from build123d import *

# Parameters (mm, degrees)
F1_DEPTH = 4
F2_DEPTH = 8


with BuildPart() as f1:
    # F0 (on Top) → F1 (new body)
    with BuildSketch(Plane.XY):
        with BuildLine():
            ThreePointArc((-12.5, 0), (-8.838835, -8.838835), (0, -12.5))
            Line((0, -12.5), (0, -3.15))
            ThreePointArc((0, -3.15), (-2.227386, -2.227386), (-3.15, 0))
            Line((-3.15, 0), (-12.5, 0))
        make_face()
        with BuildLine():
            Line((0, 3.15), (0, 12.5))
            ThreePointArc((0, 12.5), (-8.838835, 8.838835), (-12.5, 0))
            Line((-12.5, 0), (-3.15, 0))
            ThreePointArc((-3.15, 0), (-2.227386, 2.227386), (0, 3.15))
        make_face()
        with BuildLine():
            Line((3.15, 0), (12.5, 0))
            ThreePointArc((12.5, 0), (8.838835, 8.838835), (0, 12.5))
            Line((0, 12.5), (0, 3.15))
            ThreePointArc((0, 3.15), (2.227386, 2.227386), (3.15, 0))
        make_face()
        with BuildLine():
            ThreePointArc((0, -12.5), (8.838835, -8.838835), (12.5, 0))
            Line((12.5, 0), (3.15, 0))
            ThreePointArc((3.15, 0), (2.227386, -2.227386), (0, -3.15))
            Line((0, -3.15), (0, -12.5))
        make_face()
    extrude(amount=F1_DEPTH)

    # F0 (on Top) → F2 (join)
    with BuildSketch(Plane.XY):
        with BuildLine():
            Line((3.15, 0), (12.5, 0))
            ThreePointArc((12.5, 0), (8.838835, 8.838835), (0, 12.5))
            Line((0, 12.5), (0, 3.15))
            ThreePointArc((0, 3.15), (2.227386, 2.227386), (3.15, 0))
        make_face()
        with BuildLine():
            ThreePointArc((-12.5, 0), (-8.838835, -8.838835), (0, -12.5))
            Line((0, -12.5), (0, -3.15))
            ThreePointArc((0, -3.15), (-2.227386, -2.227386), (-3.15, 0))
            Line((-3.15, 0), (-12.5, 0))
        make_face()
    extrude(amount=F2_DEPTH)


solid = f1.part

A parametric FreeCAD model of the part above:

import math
import FreeCAD as App
import Part
import Sketcher

V = App.Vector

doc = App.newDocument("Part")
params = doc.addObject("Spreadsheet::Sheet", "Params")
for row, (alias, value) in enumerate([
    ("sketch1_radius", "12.499999 mm"),
    ("sketch1_radius2", "3.150001 mm"),
    ("pad1_length", "4 mm"),
    ("sketch2_radius", "12.499999 mm"),
    ("sketch2_radius2", "3.150001 mm"),
    ("pad2_length", "8 mm"),
], start=1):
    params.set(f"A{row}", alias)
    params.set(f"B{row}", "=" + value)
    params.setAlias(f"B{row}", alias)

body = doc.addObject("PartDesign::Body", "Body")

sketch1 = body.newObject("Sketcher::SketchObject", "Sketch")
sketch1.AttachmentSupport = (doc.getObject("XY_Plane"), [""])
sketch1.MapMode = "FlatFace"
sketch1.addGeometry([
    Part.ArcOfCircle(Part.Circle(V(-0.000001, -0.000001, 0), V(0, 0, 1), 12.499999), math.radians(179.999996), math.radians(270.000004)),
    Part.ArcOfCircle(Part.Circle(V(0.000001, -0.000001, 0), V(0, 0, 1), 12.499999), math.radians(-90.000004), math.radians(0.000004)),
    Part.ArcOfCircle(Part.Circle(V(0.000001, 0.000001, 0), V(0, 0, 1), 12.499999), math.radians(-0.000004), math.radians(90.000004)),
    Part.ArcOfCircle(Part.Circle(V(-0.000001, 0.000001, 0), V(0, 0, 1), 12.499999), math.radians(89.999996), math.radians(180.000004)),
    Part.ArcOfCircle(Part.Circle(V(0.000001, 0.000001, 0), V(0, 0, 1), 3.150001), math.radians(-179.999978), math.radians(-90.000022)),
    Part.ArcOfCircle(Part.Circle(V(0.000001, -0.000001, 0), V(0, 0, 1), 3.150001), math.radians(90.000022), math.radians(179.999978)),
    Part.ArcOfCircle(Part.Circle(V(-0.000001, -0.000001, 0), V(0, 0, 1), 3.150001), math.radians(0.000022), math.radians(89.999978)),
    Part.ArcOfCircle(Part.Circle(V(-0.000001, 0.000001, 0), V(0, 0, 1), 3.150001), math.radians(-89.999978), math.radians(-0.000022)),
], False)
sketch1.addConstraint([
    Sketcher.Constraint("Tangent", 0, 2, 1, 1),
    Sketcher.Constraint("Tangent", 1, 2, 2, 1),
    Sketcher.Constraint("Tangent", 2, 2, 3, 1),
    Sketcher.Constraint("Tangent", 3, 2, 0, 1),
    Sketcher.Constraint("Tangent", 4, 1, 5, 2),
    Sketcher.Constraint("Tangent", 5, 1, 6, 2),
    Sketcher.Constraint("Tangent", 6, 1, 7, 2),
    Sketcher.Constraint("Tangent", 7, 1, 4, 2),
    Sketcher.Constraint("Coincident", 0, 3, -1, 1),
    Sketcher.Constraint("Coincident", 4, 3, -1, 1),
    Sketcher.Constraint("Equal", 0, 1),
    Sketcher.Constraint("Equal", 4, 5),
    Sketcher.Constraint("PointOnObject", 0, 2, -2),
    Sketcher.Constraint("PointOnObject", 1, 2, -1),
    Sketcher.Constraint("PointOnObject", 2, 2, -2),
    Sketcher.Constraint("PointOnObject", 3, 2, -1),
    Sketcher.Constraint("PointOnObject", 4, 1, -1),
    Sketcher.Constraint("PointOnObject", 5, 1, -2),
    Sketcher.Constraint("PointOnObject", 6, 1, -1),
    Sketcher.Constraint("PointOnObject", 7, 1, -2),
    Sketcher.Constraint("Radius", 0, 12.499999),
    Sketcher.Constraint("Radius", 4, 3.150001),
])
sketch1.setExpression("Constraints[20]", "Params.sketch1_radius")
sketch1.setExpression("Constraints[21]", "Params.sketch1_radius2")
pad1 = body.newObject("PartDesign::Pad", "Pad")
pad1.Profile = sketch1
pad1.setExpression("Length", "Params.pad1_length")

sketch2 = body.newObject("Sketcher::SketchObject", "Sketch001")
sketch2.AttachmentSupport = (doc.getObject("XY_Plane"), [""])
sketch2.MapMode = "FlatFace"
sketch2.addGeometry([
    Part.LineSegment(V(3.15, 0, 0), V(12.5, 0, 0)),
    Part.ArcOfCircle(Part.Circle(V(0.000001, 0.000001, 0), V(0, 0, 1), 12.499999), math.radians(-0.000004), math.radians(90.000004)),
    Part.LineSegment(V(0, 12.5, 0), V(0, 3.15, 0)),
    Part.ArcOfCircle(Part.Circle(V(-0.000001, -0.000001, 0), V(0, 0, 1), 3.150001), math.radians(0.000022), math.radians(89.999978)),
    Part.ArcOfCircle(Part.Circle(V(-0.000001, -0.000001, 0), V(0, 0, 1), 12.499999), math.radians(179.999996), math.radians(270.000004)),
    Part.LineSegment(V(0, -12.5, 0), V(0, -3.15, 0)),
    Part.ArcOfCircle(Part.Circle(V(0.000001, 0.000001, 0), V(0, 0, 1), 3.150001), math.radians(-179.999978), math.radians(-90.000022)),
    Part.LineSegment(V(-3.15, 0, 0), V(-12.5, 0, 0)),
], False)
sketch2.addConstraint([
    Sketcher.Constraint("Coincident", 0, 2, 1, 1),
    Sketcher.Constraint("Coincident", 1, 2, 2, 1),
    Sketcher.Constraint("Coincident", 2, 2, 3, 2),
    Sketcher.Constraint("Coincident", 3, 1, 0, 1),
    Sketcher.Constraint("Coincident", 4, 2, 5, 1),
    Sketcher.Constraint("Coincident", 5, 2, 6, 2),
    Sketcher.Constraint("Coincident", 6, 1, 7, 1),
    Sketcher.Constraint("Coincident", 7, 2, 4, 1),
    Sketcher.Constraint("Horizontal", 0),
    Sketcher.Constraint("Vertical", 2),
    Sketcher.Constraint("Vertical", 5),
    Sketcher.Constraint("Horizontal", 7),
    Sketcher.Constraint("Coincident", 1, 3, -1, 1),
    Sketcher.Constraint("Coincident", 3, 3, -1, 1),
    Sketcher.Constraint("Coincident", 4, 3, -1, 1),
    Sketcher.Constraint("Coincident", 6, 3, -1, 1),
    Sketcher.Constraint("Equal", 1, 4),
    Sketcher.Constraint("Equal", 3, 6),
    Sketcher.Constraint("PointOnObject", 0, 2, -1),
    Sketcher.Constraint("PointOnObject", 1, 2, -2),
    Sketcher.Constraint("PointOnObject", 4, 2, -2),
    Sketcher.Constraint("PointOnObject", 6, 1, -1),
    Sketcher.Constraint("Radius", 1, 12.499999),
    Sketcher.Constraint("Radius", 3, 3.150001),
])
sketch2.setExpression("Constraints[22]", "Params.sketch2_radius")
sketch2.setExpression("Constraints[23]", "Params.sketch2_radius2")
pad2 = body.newObject("PartDesign::Pad", "Pad001")
pad2.Profile = sketch2
pad2.setExpression("Length", "Params.pad2_length")

doc.recompute()
